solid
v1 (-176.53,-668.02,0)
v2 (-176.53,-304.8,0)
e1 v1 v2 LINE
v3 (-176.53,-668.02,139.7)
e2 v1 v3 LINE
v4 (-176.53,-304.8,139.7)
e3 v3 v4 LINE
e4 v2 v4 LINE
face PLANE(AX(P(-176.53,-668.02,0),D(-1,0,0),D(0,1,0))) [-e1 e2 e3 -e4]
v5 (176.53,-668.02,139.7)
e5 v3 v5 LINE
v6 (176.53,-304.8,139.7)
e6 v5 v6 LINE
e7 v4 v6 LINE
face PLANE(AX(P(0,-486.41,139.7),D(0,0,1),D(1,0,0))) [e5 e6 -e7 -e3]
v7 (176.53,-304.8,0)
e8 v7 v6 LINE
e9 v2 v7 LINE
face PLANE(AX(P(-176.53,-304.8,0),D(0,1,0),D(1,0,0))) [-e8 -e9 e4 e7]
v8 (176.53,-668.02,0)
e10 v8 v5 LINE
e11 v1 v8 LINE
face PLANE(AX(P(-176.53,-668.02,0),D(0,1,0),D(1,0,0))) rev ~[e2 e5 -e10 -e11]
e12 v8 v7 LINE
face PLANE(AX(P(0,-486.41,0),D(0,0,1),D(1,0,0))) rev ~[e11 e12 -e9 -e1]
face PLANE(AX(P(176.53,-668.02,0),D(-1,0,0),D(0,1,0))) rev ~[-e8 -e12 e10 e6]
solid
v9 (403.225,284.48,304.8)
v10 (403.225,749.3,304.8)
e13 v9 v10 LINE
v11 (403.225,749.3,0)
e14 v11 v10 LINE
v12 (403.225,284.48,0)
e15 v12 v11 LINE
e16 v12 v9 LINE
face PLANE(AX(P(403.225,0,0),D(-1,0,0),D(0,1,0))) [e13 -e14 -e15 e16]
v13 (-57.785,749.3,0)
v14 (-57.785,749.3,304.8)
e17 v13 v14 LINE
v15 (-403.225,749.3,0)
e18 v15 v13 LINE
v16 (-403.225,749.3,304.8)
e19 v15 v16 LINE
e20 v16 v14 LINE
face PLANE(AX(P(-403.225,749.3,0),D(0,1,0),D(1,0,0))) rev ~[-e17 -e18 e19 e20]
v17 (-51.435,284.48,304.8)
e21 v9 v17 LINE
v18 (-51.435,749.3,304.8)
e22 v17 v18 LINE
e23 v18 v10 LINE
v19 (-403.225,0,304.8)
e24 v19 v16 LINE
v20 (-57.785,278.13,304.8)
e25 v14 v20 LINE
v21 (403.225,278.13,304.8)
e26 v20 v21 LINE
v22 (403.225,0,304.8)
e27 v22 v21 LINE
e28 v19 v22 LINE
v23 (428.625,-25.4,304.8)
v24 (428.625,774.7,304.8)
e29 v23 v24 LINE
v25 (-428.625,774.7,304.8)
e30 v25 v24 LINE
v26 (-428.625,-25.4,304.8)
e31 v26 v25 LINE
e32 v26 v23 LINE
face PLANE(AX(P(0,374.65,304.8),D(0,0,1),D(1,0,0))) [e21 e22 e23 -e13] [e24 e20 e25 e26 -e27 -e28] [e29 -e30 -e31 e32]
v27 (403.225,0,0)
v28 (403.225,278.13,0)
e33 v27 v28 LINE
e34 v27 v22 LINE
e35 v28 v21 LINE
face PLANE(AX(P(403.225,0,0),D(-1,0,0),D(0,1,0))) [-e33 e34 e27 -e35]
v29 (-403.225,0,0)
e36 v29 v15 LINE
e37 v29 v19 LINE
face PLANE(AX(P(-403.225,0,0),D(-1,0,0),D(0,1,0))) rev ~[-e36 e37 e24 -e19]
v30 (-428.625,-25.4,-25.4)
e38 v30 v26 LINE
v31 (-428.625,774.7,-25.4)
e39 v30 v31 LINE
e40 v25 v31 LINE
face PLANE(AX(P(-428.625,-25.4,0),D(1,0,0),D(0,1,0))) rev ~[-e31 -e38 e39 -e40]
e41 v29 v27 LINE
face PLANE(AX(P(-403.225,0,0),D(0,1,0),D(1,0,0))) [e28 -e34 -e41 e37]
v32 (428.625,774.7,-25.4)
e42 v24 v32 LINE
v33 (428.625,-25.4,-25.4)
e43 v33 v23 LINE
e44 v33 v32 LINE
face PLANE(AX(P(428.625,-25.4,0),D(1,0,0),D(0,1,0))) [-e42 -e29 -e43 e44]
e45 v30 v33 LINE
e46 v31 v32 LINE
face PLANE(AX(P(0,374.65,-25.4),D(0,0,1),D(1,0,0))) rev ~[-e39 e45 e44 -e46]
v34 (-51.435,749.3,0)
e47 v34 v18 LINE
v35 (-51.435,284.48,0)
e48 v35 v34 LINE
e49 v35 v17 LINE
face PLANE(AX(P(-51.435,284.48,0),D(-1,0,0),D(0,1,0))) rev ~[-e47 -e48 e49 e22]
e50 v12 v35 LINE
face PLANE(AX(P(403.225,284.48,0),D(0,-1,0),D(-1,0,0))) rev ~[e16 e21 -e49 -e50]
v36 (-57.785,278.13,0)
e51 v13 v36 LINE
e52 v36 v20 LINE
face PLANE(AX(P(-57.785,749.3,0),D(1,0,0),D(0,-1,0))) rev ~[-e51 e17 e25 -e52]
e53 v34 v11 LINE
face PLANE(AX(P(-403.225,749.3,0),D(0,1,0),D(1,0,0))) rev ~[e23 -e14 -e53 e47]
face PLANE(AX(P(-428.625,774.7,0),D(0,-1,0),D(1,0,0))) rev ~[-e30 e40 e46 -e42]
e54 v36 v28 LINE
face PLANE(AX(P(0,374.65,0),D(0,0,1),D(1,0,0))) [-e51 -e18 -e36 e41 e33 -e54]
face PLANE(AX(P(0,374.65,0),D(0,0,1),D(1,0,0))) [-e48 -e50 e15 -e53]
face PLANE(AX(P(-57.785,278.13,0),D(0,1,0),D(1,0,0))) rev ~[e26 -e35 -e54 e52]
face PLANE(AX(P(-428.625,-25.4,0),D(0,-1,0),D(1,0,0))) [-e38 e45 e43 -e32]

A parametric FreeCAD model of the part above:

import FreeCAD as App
import Part
import Sketcher

V = App.Vector
Q = App.Units.Quantity


def add_polygon(sketch, points):
    """Adds a closed chain of lines whose ends are joined by coincident constraints."""
    first, n = sketch.GeometryCount, len(points)
    for a, b in zip(points, points[1:] + points[:1]):
        sketch.addGeometry(Part.LineSegment(App.Vector(*a, 0), App.Vector(*b, 0)), False)
    for i in range(n):
        sketch.addConstraint(Sketcher.Constraint("Coincident", first + i, 2, first + (i + 1) % n, 1))

doc = App.newDocument("Part")
params = doc.addObject("Spreadsheet::Sheet", "Params")
for row, (alias, value) in enumerate([
    ("sketch1_height", "31.5 in"),
    ("sketch1_height2", "29.5 in"),
    ("sketch1_width", "33.75 in"),
    ("pad1_length", "12 in"),
    ("sketch2_height", "31.5 in"),
    ("sketch2_width", "33.75 in"),
    ("pad2_length", "1 in"),
    ("sketch3_width", "17.9 in"),
    ("sketch3_height", "18.3 in"),
    ("sketch3_width2", "0.25 in"),
    ("pad3_length", "12 in"),
    ("sketch4_width", "13.9 in"),
    ("sketch4_height", "14.3 in"),
    ("pad4_length", "5.5 in"),
], start=1):
    params.set(f"A{row}", alias)
    params.set(f"B{row}", "=" + value)
    params.setAlias(f"B{row}", alias)

body = doc.addObject("PartDesign::Body", "Body")

# Sketch on XY plane
sketch1 = body.newObject("Sketcher::SketchObject", "Sketch")
sketch1.AttachmentSupport = (doc.getObject("XY_Plane"), [""])
sketch1.MapMode = "FlatFace"
add_polygon(sketch1, [(-429, 775), (-429, -25), (429, -25), (429, 775)])  # lines 0-3
add_polygon(sketch1, [(403, 0), (-403, 0), (-403, 749), (403, 749)])  # lines 4-7
sketch1.addConstraint([
    Sketcher.Constraint("Vertical", 0),
    Sketcher.Constraint("Horizontal", 1),
    Sketcher.Constraint("Vertical", 2),
    Sketcher.Constraint("Horizontal", 3),
    Sketcher.Constraint("Horizontal", 4),
    Sketcher.Constraint("Vertical", 5),
    Sketcher.Constraint("Horizontal", 6),
    Sketcher.Constraint("Vertical", 7),
    Sketcher.Constraint("Symmetric", 4, 2, 7, 2, -1, 1),
    Sketcher.Constraint("DistanceY", 0, 2, 0, 1, Q("31.5 in")),
    Sketcher.Constraint("DistanceY", 5, 1, 5, 2, Q("29.5 in")),
    Sketcher.Constraint("DistanceY", 0, 2, -1, 1, Q("1 in")),
    Sketcher.Constraint("DistanceX", 0, 2, 4, 2, Q("1 in")),
    Sketcher.Constraint("DistanceX", 6, 2, 2, 2, Q("1 in")),
    Sketcher.Constraint("DistanceX", 1, 1, 1, 2, Q("33.75 in")),
])
sketch1.setExpression("Constraints[17]", "Params.sketch1_height")
sketch1.setExpression("Constraints[18]", "Params.sketch1_height2")
sketch1.setExpression("Constraints[22]", "Params.sketch1_width")
pad1 = body.newObject("PartDesign::Pad", "Pad")
pad1.Profile = sketch1
pad1.setExpression("Length", "Params.pad1_length")

# Sketch on XY plane
sketch2 = body.newObject("Sketcher::SketchObject", "Sketch001")
sketch2.AttachmentSupport = (doc.getObject("XY_Plane"), [""])
sketch2.MapMode = "FlatFace"
add_polygon(sketch2, [(-429, 775), (-429, -25), (429, -25), (429, 775)])  # lines 0-3
sketch2.addConstraint([
    Sketcher.Constraint("Vertical", 0),
    Sketcher.Constraint("Horizontal", 1),
    Sketcher.Constraint("Vertical", 2),
    Sketcher.Constraint("Horizontal", 3),
    Sketcher.Constraint("DistanceY", 0, 2, 0, 1, Q("31.5 in")),
    Sketcher.Constraint("DistanceY", 0, 2, -1, 1, Q("1 in")),
    Sketcher.Constraint("DistanceX", 1, 1, 1, 2, Q("33.75 in")),
    Sketcher.Constraint("DistanceX", 0, 2, -1, 1, Q("16.875 in")),
])
sketch2.setExpression("Constraints[8]", "Params.sketch2_height")
sketch2.setExpression("Constraints[10]", "Params.sketch2_width")
pad2 = body.newObject("PartDesign::Pad", "Pad001")
pad2.Profile = sketch2
pad2.setExpression("Length", "Params.pad2_length")
pad2.Reversed = True

# Sketch on XY plane
sketch3 = body.newObject("Sketcher::SketchObject", "Sketch002")
sketch3.AttachmentSupport = (doc.getObject("XY_Plane"), [""])
sketch3.MapMode = "FlatFace"
add_polygon(sketch3, [(403, 278), (403, 284), (-51, 284), (-51, 749), (-58, 749), (-58, 278)])  # lines 0-5
sketch3.addConstraint([
    Sketcher.Constraint("Vertical", 0),
    Sketcher.Constraint("Horizontal", 1),
    Sketcher.Constraint("Vertical", 2),
    Sketcher.Constraint("Horizontal", 3),
    Sketcher.Constraint("Vertical", 4),
    Sketcher.Constraint("Horizontal", 5),
    Sketcher.Constraint("Equal", 3, 0),
    Sketcher.Constraint("DistanceX", 1, 2, 1, 1, Q("17.9 in")),
    Sketcher.Constraint("DistanceY", 2, 1, 2, 2, Q("18.3 in")),
    Sketcher.Constraint("DistanceX", 3, 2, 3, 1, Q("0.25 in")),
    Sketcher.Constraint("DistanceY", -1, 1, 0, 2, Q("11.2 in")),
    Sketcher.Constraint("DistanceX", -1, 1, 0, 2, Q("15.875 in")),
])
sketch3.setExpression("Constraints[13]", "Params.sketch3_width")
sketch3.setExpression("Constraints[14]", "Params.sketch3_height")
sketch3.setExpression("Constraints[15]", "Params.sketch3_width2")
pad3 = body.newObject("PartDesign::Pad", "Pad002")
pad3.Profile = sketch3
pad3.setExpression("Length", "Params.pad3_length")
body2 = doc.addObject("PartDesign::Body", "Body001")

# Sketch on XY plane
sketch4 = body2.newObject("Sketcher::SketchObject", "Sketch003")
sketch4.AttachmentSupport = (doc.getObject("XY_Plane001"), [""])
sketch4.MapMode = "FlatFace"
add_polygon(sketch4, [(-177, -305), (-177, -668), (177, -668), (177, -305)])  # lines 0-3
sketch4.addConstraint([
    Sketcher.Constraint("Vertical", 0),
    Sketcher.Constraint("Horizontal", 1),
    Sketcher.Constraint("Vertical", 2),
    Sketcher.Constraint("Horizontal", 3),
    Sketcher.Constraint("DistanceX", 1, 1, 1, 2, Q("13.9 in")),
    Sketcher.Constraint("DistanceY", 0, 2, 0, 1, Q("14.3 in")),
    Sketcher.Constraint("DistanceY", 2, 2, -1, 1, Q("12 in")),
    Sketcher.Constraint("DistanceX", 0, 2, -1, 1, Q("6.95 in")),
])
sketch4.setExpression("Constraints[8]", "Params.sketch4_width")
sketch4.setExpression("Constraints[9]", "Params.sketch4_height")
pad4 = body2.newObject("PartDesign::Pad", "Pad003")
pad4.Profile = sketch4
pad4.setExpression("Length", "Params.pad4_length")

doc.recompute()
